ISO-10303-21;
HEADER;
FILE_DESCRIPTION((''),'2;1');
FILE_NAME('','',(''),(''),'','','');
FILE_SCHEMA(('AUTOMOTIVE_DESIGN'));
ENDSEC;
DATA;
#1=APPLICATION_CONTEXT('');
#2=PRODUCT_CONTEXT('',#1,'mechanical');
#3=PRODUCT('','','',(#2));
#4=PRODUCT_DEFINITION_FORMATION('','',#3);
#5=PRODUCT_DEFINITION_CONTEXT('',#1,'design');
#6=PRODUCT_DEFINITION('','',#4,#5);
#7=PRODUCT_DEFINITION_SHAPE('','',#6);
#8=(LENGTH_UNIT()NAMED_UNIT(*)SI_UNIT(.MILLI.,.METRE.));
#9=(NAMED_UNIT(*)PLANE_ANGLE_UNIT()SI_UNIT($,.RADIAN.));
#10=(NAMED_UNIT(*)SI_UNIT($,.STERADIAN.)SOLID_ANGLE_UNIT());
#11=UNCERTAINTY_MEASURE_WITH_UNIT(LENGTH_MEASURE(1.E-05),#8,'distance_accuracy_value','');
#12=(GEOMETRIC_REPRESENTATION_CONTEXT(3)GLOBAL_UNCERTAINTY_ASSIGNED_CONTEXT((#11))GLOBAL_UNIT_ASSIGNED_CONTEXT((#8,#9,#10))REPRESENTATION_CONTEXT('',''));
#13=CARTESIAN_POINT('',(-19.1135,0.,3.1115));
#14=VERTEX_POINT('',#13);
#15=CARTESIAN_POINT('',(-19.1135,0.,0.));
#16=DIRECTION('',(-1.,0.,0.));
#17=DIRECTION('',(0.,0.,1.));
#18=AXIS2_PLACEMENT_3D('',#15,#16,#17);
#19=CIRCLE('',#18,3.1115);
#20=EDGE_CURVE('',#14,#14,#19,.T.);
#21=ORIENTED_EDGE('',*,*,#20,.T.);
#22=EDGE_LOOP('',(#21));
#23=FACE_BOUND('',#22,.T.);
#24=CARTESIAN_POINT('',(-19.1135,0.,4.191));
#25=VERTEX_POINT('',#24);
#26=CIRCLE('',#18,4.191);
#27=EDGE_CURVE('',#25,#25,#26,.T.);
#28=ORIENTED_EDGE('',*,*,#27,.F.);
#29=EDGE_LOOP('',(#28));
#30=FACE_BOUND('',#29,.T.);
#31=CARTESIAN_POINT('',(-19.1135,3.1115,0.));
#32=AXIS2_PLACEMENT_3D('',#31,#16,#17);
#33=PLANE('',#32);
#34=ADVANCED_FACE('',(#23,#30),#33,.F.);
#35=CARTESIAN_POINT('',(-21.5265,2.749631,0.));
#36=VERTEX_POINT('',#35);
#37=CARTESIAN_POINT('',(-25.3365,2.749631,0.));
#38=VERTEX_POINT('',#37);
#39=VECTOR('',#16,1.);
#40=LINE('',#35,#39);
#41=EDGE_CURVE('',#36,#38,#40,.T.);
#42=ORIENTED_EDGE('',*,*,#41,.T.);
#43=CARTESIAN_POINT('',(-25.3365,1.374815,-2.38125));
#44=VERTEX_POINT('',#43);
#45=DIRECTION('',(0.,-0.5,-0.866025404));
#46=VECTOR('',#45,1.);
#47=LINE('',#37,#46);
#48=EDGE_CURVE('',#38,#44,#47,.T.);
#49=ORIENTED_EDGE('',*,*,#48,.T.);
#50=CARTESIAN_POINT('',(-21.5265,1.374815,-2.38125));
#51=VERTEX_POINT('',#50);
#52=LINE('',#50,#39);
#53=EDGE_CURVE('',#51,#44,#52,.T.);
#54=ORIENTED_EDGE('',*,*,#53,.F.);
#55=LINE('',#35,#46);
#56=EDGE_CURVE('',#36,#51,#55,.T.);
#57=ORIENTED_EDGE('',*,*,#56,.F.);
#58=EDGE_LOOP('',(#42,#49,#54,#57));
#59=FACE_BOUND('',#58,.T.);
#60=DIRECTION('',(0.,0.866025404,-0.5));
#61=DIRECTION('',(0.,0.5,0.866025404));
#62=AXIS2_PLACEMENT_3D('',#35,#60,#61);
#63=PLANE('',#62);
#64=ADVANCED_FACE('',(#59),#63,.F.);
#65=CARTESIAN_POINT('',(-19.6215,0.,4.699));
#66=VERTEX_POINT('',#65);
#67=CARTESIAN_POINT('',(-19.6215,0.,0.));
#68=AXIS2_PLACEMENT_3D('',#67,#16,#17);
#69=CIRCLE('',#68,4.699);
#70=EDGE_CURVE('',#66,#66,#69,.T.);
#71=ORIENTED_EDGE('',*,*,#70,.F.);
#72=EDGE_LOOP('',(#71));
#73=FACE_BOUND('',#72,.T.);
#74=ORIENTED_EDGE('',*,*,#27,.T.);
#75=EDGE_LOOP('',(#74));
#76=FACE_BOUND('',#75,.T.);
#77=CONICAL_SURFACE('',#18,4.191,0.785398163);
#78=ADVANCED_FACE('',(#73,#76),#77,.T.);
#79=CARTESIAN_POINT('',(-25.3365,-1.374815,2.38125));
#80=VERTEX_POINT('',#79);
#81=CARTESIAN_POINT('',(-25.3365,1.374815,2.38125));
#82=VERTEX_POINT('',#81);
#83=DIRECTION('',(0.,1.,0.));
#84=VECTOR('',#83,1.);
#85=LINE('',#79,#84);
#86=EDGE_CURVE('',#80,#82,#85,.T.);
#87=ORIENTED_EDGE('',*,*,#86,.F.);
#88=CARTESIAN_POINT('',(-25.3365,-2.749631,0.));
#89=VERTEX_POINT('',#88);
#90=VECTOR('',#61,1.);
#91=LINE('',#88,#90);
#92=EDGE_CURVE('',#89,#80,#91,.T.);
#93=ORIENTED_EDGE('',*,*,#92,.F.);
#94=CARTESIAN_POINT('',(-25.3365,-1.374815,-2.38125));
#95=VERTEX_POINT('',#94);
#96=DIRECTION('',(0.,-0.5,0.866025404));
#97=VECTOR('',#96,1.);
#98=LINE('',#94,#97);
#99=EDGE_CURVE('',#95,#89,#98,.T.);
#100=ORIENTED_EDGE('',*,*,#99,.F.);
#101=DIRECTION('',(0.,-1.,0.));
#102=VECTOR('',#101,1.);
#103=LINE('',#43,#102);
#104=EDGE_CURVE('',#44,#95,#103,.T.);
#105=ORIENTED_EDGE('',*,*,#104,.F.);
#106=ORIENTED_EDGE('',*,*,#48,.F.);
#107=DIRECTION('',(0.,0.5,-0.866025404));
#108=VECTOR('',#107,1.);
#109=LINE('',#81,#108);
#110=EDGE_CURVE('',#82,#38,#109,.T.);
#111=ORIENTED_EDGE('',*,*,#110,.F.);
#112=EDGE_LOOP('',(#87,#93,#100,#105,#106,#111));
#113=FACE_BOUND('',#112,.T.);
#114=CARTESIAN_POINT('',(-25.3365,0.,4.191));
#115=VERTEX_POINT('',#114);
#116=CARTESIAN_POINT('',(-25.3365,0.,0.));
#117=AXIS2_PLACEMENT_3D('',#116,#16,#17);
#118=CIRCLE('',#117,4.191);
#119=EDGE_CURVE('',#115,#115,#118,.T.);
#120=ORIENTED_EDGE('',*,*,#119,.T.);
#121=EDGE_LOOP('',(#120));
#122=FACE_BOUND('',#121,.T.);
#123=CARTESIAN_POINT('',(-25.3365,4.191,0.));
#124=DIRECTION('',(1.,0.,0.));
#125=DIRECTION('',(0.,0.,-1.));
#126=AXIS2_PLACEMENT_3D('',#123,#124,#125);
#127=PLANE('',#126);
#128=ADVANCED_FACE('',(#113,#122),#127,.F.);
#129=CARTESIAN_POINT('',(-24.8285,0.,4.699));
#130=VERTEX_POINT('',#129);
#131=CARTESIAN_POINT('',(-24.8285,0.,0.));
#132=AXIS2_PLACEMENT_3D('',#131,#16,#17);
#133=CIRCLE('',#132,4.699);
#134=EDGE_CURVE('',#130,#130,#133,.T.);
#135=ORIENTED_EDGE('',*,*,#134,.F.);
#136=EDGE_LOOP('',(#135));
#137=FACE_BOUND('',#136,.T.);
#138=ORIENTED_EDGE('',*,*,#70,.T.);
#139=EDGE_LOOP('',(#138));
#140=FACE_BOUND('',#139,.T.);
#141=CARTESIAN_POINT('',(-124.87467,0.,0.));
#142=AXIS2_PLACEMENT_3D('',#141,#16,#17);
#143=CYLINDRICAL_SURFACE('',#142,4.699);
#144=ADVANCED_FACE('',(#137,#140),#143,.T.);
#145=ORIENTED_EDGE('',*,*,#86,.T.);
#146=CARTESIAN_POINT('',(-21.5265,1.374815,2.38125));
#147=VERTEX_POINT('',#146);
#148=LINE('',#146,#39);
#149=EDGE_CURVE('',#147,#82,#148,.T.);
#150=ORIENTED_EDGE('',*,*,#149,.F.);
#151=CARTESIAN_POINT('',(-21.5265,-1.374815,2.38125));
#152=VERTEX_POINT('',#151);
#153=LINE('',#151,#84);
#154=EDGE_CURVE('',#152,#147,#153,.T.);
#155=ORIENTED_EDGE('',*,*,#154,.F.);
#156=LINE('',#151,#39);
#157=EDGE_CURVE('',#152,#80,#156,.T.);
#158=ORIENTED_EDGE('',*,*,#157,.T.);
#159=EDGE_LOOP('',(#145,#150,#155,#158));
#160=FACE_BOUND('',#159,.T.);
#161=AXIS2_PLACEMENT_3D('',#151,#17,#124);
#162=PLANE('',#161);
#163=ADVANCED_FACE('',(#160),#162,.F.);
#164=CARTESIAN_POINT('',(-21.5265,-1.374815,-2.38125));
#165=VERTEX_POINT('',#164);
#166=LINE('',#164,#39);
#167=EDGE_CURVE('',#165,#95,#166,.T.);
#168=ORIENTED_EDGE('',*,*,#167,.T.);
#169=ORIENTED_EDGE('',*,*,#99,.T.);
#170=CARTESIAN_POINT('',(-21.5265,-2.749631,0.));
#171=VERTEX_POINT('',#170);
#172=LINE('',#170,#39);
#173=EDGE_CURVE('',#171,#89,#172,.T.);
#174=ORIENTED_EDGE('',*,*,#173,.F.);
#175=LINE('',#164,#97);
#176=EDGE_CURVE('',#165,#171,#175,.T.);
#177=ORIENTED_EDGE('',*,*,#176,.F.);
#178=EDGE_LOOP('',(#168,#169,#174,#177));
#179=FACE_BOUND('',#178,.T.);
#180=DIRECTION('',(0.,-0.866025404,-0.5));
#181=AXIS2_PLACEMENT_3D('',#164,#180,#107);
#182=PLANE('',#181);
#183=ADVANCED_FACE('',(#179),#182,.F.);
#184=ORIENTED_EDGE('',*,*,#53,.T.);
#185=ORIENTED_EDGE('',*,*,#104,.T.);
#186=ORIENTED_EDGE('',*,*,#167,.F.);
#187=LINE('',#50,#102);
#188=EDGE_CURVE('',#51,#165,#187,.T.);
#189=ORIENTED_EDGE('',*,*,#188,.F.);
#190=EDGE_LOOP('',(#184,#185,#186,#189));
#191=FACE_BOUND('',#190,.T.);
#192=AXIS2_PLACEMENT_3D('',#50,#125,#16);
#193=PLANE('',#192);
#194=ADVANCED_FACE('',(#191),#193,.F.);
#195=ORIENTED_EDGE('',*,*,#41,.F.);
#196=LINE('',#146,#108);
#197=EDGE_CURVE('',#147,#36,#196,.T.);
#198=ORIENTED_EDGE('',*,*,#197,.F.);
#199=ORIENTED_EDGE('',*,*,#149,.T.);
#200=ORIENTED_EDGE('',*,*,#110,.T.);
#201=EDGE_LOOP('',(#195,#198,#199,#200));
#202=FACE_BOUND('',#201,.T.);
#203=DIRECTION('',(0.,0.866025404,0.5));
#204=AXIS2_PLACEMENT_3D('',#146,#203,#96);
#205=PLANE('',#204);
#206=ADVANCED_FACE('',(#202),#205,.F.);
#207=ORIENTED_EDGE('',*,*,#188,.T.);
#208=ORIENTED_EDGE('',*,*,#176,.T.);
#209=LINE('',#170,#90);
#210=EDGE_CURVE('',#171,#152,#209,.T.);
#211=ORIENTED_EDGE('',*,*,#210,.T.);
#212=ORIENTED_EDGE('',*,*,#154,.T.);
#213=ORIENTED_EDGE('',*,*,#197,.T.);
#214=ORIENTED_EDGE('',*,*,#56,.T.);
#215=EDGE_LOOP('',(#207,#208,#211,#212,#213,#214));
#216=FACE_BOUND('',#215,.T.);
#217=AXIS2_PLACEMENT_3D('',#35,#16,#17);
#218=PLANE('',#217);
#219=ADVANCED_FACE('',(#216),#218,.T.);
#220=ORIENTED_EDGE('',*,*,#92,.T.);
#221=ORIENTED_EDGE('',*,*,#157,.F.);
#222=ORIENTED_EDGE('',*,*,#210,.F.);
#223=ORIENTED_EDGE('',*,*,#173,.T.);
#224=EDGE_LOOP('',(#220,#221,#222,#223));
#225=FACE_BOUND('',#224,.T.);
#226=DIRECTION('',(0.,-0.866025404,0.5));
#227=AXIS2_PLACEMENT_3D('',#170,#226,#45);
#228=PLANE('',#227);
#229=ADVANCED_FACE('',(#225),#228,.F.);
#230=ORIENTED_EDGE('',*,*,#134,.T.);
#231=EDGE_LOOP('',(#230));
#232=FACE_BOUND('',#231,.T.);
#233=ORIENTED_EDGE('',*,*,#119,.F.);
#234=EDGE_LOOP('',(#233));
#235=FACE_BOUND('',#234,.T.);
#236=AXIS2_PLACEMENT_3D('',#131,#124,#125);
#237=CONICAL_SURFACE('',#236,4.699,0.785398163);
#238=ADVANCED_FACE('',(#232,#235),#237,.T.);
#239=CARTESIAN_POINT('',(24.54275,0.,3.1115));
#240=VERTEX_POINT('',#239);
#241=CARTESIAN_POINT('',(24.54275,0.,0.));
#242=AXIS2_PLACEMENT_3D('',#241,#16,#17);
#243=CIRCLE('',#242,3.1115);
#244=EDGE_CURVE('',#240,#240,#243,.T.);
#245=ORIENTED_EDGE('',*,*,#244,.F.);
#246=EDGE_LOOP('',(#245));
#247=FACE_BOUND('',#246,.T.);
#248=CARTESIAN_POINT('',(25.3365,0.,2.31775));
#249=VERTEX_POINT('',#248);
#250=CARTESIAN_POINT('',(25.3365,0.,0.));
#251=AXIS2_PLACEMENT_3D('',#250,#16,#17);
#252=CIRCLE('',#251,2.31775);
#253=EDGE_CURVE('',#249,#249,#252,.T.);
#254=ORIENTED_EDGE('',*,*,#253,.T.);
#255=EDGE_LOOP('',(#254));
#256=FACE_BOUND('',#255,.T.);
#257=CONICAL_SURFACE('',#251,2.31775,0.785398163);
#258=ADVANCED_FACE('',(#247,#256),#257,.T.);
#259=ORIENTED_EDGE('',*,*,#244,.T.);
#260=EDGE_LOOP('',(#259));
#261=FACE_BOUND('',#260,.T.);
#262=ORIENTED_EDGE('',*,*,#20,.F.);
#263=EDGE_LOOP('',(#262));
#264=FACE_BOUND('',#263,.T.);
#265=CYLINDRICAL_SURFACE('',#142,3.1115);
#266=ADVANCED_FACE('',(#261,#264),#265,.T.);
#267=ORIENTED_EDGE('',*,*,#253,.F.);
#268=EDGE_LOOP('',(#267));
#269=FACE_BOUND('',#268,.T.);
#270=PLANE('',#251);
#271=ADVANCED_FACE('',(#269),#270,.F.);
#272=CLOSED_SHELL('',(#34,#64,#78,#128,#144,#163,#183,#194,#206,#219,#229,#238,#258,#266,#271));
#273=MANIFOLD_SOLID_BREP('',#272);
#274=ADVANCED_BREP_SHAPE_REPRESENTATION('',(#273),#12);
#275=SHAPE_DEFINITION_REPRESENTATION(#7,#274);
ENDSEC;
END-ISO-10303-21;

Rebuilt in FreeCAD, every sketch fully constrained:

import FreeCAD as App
import Part
import Sketcher
from FreeCAD import Vector
Q = App.Units.Quantity


def add_polygon(sketch, points):
    """Adds a closed chain of lines whose ends are joined by coincident constraints."""
    first, n = sketch.GeometryCount, len(points)
    for a, b in zip(points, points[1:] + points[:1]):
        sketch.addGeometry(Part.LineSegment(App.Vector(*a, 0), App.Vector(*b, 0)), False)
    for i in range(n):
        sketch.addConstraint(Sketcher.Constraint("Coincident", first + i, 2, first + (i + 1) % n, 1))

doc = App.newDocument("Part")
body = doc.addObject("PartDesign::Body", "Body")

# Sketch on XY plane
sketch1 = doc.addObject("Sketcher::SketchObject", "Sketch")
body.addObject(sketch1)
sketch1.AttachmentSupport = (doc.XY_Plane, [""])
sketch1.MapMode = "FlatFace"
add_polygon(sketch1, [(25.3, 0), (25.3, 2.3), (24.5, 3.1), (-19.1, 3.1), (-19.1, 4.2), (-19.6, 4.7), (-24.8, 4.7), (-25.3, 4.2), (-25.3, 0)])  # lines 0-8
sketch1.addConstraint(Sketcher.Constraint("Vertical", 0))
sketch1.addConstraint(Sketcher.Constraint("Horizontal", 2))
sketch1.addConstraint(Sketcher.Constraint("Vertical", 3))
sketch1.addConstraint(Sketcher.Constraint("Horizontal", 5))
sketch1.addConstraint(Sketcher.Constraint("Vertical", 7))
sketch1.addConstraint(Sketcher.Constraint("Horizontal", 8))
sketch1.addConstraint(Sketcher.Constraint("Symmetric", 7, 2, 8, 2, -1, 1))
sketch1.addConstraint(Sketcher.Constraint("Parallel", 1, 4))
sketch1.addConstraint(Sketcher.Constraint("Perpendicular", 4, 6))
sketch1.addConstraint(Sketcher.Constraint("Horizontal", 3, 2, 6, 2))
sketch1.addConstraint(Sketcher.Constraint("Equal", 4, 6))
sketch1.addConstraint(Sketcher.Constraint("DistanceX", 2, 2, 2, 1, Q("1.71875 in")))
sketch1.addConstraint(Sketcher.Constraint("DistanceX", 5, 2, 5, 1, Q("0.205 in")))
sketch1.addConstraint(Sketcher.Constraint("DistanceX", 8, 1, 8, 2, Q("1.995 in")))
sketch1.addConstraint(Sketcher.Constraint("DistanceY", 7, 2, 7, 1, Q("0.165 in")))
sketch1.addConstraint(Sketcher.Constraint("DistanceX", 2, 2, 0, 2, Q("1.75 in")))
sketch1.addConstraint(Sketcher.Constraint("DistanceY", 3, 1, 3, 2, Q("0.0425 in")))
revolution = doc.addObject("PartDesign::Revolution", "Revolution")
body.addObject(revolution)
revolution.Profile = sketch1
revolution.ReferenceAxis = (sketch1, ["H_Axis"])
revolution.Angle = 360

# Sketch on YZ plane
sketch2 = doc.addObject("Sketcher::SketchObject", "Sketch001")
body.addObject(sketch2)
sketch2.AttachmentSupport = (doc.YZ_Plane, [""])
sketch2.MapMode = "FlatFace"
sketch2.AttachmentOffset = App.Placement(Vector(0, 0, -0.9975 * 25.4), App.Rotation())
add_polygon(sketch2, [(2.7, 0), (1.4, -2.4), (-1.4, -2.4), (-2.7, 0), (-1.4, 2.4), (1.4, 2.4)])  # lines 0-5
sketch2.addConstraint(Sketcher.Constraint("Horizontal", 1))
sketch2.addConstraint(Sketcher.Constraint("Horizontal", 4))
sketch2.addConstraint(Sketcher.Constraint("Symmetric", 0, 2, 3, 2, -1, 1))
sketch2.addConstraint(Sketcher.Constraint("Symmetric", 2, 2, 5, 2, -1, 1))
sketch2.addConstraint(Sketcher.Constraint("PointOnObject", 2, 2, -1))
sketch2.addConstraint(Sketcher.Constraint("Parallel", 2, 5))
sketch2.addConstraint(Sketcher.Constraint("Vertical", 1, 2, 3, 2))
sketch2.addConstraint(Sketcher.Constraint("Angle", 0, Q("-120 deg")))
sketch2.addConstraint(Sketcher.Constraint("DistanceY", 0, 2, -1, 1, Q("0.09375 in")))
sketch2.addConstraint(Sketcher.Constraint("DistanceX", 1, 2, 1, 1, Q("2.749631 mm")))
pocket1 = doc.addObject("PartDesign::Pocket", "Pocket")
body.addObject(pocket1)
pocket1.Profile = sketch2
pocket1.Length = Q("0.15 in")
pocket1.Reversed = True

doc.recompute()
